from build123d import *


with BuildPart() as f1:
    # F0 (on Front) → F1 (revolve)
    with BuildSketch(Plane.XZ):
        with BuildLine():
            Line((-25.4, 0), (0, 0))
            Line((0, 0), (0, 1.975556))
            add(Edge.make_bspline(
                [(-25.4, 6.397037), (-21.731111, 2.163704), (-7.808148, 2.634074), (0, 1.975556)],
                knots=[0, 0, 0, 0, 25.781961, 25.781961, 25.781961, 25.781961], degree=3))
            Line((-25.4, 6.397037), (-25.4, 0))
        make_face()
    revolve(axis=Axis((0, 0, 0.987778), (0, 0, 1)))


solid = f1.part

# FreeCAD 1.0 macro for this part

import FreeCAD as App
import Part
import Sketcher

doc = App.newDocument("Part")
body = doc.addObject("PartDesign::Body", "Body")

# Sketch on XZ plane
sketch1 = body.newObject("Sketcher::SketchObject", "Sketch")
sketch1.AttachmentSupport = (doc.getObject("XZ_Plane"), [""])
sketch1.MapMode = "FlatFace"
sketch1.addGeometry(Part.LineSegment(App.Vector(-25.4, 0, 0), App.Vector(0, 0, 0)), False)
sketch1.addGeometry(Part.LineSegment(App.Vector(0, 0, 0), App.Vector(0, 1.975556, 0)), False)
sketch1.addGeometry(Part.BSplineCurve([App.Vector(-25.4, 6.397037, 0), App.Vector(-21.731111, 2.163704, 0), App.Vector(-7.808148, 2.634074, 0), App.Vector(0, 1.975556, 0)], [4, 4], [0, 25.781961], False, 3, [1, 1, 1, 1], False), False)
sketch1.addGeometry(Part.LineSegment(App.Vector(-25.4, 6.397037, 0), App.Vector(-25.4, 0, 0)), False)
sketch1.addConstraint(Sketcher.Constraint("Block", 2))
sketch1.addConstraint(Sketcher.Constraint("Coincident", 0, 2, 1, 1))
sketch1.addConstraint(Sketcher.Constraint("Coincident", 1, 2, 2, 2))
sketch1.addConstraint(Sketcher.Constraint("Coincident", 2, 1, 3, 1))
sketch1.addConstraint(Sketcher.Constraint("Coincident", 3, 2, 0, 1))
sketch1.addConstraint(Sketcher.Constraint("Horizontal", 0))
sketch1.addConstraint(Sketcher.Constraint("Vertical", 1))
sketch1.addConstraint(Sketcher.Constraint("Vertical", 3))
sketch1.addConstraint(Sketcher.Constraint("PointOnObject", 3, 2, -1))
revolution = body.newObject("PartDesign::Revolution", "Revolution")
revolution.Profile = sketch1
revolution.ReferenceAxis = (sketch1, ["V_Axis"])
revolution.Angle = 360

doc.recompute()
